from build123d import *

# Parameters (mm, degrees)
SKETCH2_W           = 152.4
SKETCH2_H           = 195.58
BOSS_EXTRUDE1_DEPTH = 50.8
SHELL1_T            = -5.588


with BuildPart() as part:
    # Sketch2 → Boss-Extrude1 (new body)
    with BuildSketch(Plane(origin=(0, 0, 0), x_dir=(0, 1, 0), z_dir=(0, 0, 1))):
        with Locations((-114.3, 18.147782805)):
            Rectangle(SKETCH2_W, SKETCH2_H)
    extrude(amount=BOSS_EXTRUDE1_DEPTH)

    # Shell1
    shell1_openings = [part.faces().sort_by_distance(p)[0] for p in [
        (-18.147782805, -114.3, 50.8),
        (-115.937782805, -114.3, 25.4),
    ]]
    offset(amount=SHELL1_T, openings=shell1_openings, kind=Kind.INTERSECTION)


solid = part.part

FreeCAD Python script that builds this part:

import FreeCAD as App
import Part
import Sketcher
from FreeCAD import Vector
Q = App.Units.Quantity


def faces_at(feature, points):
    """Names of the faces that lie closest to the given points."""
    faces = feature.Shape.Faces
    near = lambda p: min(range(len(faces)), key=lambda i: faces[i].distToShape(Part.Vertex(*p))[0])
    return sorted({f"Face{near(p) + 1}" for p in points})

doc = App.newDocument("Part")
body = doc.addObject("PartDesign::Body", "Body")

# Sketch on XY plane
sketch1 = body.newObject("Sketcher::SketchObject", "Sketch")
sketch1.AttachmentSupport = (doc.getObject("XY_Plane"), [""])
sketch1.MapMode = "FlatFace"
sketch1.addGeometry(Part.LineSegment(Vector(-115.937783, -190.5, 0), Vector(79.642217, -190.5, 0)), False)
sketch1.addGeometry(Part.LineSegment(Vector(79.642217, -190.5, 0), Vector(79.642217, -38.1, 0)), False)
sketch1.addGeometry(Part.LineSegment(Vector(79.642217, -38.1, 0), Vector(-115.937783, -38.1, 0)), False)
sketch1.addGeometry(Part.LineSegment(Vector(-115.937783, -38.1, 0), Vector(-115.937783, -190.5, 0)), False)
sketch1.addConstraint(Sketcher.Constraint("Coincident", 0, 2, 1, 1))
sketch1.addConstraint(Sketcher.Constraint("Coincident", 1, 2, 2, 1))
sketch1.addConstraint(Sketcher.Constraint("Coincident", 2, 2, 3, 1))
sketch1.addConstraint(Sketcher.Constraint("Coincident", 3, 2, 0, 1))
sketch1.addConstraint(Sketcher.Constraint("Horizontal", 0))
sketch1.addConstraint(Sketcher.Constraint("Vertical", 1))
sketch1.addConstraint(Sketcher.Constraint("Horizontal", 2))
sketch1.addConstraint(Sketcher.Constraint("Vertical", 3))
sketch1.addConstraint(Sketcher.Constraint("DistanceY", 1, 1, 1, 2, Q("6 in")))
sketch1.addConstraint(Sketcher.Constraint("DistanceX", 0, 1, 0, 2, Q("7.7 in")))
sketch1.addConstraint(Sketcher.Constraint("DistanceY", 0, 2, -1, 1, Q("7.5 in")))
sketch1.addConstraint(Sketcher.Constraint("DistanceX", -1, 1, 0, 2, 79.642217))
pad1 = body.newObject("PartDesign::Pad", "Pad")
pad1.Profile = sketch1
pad1.Length = Q("2 in")
doc.recompute()

thickness = body.newObject("PartDesign::Thickness", "Thickness")
thickness.Base = (pad1, faces_at(pad1, [(-18.148, -114.3, 50.8), (-115.938, -114.3, 25.4)]))
thickness.Value = Q("0.22 in")
thickness.Reversed = True
thickness.Join = "Intersection"

doc.recompute()
